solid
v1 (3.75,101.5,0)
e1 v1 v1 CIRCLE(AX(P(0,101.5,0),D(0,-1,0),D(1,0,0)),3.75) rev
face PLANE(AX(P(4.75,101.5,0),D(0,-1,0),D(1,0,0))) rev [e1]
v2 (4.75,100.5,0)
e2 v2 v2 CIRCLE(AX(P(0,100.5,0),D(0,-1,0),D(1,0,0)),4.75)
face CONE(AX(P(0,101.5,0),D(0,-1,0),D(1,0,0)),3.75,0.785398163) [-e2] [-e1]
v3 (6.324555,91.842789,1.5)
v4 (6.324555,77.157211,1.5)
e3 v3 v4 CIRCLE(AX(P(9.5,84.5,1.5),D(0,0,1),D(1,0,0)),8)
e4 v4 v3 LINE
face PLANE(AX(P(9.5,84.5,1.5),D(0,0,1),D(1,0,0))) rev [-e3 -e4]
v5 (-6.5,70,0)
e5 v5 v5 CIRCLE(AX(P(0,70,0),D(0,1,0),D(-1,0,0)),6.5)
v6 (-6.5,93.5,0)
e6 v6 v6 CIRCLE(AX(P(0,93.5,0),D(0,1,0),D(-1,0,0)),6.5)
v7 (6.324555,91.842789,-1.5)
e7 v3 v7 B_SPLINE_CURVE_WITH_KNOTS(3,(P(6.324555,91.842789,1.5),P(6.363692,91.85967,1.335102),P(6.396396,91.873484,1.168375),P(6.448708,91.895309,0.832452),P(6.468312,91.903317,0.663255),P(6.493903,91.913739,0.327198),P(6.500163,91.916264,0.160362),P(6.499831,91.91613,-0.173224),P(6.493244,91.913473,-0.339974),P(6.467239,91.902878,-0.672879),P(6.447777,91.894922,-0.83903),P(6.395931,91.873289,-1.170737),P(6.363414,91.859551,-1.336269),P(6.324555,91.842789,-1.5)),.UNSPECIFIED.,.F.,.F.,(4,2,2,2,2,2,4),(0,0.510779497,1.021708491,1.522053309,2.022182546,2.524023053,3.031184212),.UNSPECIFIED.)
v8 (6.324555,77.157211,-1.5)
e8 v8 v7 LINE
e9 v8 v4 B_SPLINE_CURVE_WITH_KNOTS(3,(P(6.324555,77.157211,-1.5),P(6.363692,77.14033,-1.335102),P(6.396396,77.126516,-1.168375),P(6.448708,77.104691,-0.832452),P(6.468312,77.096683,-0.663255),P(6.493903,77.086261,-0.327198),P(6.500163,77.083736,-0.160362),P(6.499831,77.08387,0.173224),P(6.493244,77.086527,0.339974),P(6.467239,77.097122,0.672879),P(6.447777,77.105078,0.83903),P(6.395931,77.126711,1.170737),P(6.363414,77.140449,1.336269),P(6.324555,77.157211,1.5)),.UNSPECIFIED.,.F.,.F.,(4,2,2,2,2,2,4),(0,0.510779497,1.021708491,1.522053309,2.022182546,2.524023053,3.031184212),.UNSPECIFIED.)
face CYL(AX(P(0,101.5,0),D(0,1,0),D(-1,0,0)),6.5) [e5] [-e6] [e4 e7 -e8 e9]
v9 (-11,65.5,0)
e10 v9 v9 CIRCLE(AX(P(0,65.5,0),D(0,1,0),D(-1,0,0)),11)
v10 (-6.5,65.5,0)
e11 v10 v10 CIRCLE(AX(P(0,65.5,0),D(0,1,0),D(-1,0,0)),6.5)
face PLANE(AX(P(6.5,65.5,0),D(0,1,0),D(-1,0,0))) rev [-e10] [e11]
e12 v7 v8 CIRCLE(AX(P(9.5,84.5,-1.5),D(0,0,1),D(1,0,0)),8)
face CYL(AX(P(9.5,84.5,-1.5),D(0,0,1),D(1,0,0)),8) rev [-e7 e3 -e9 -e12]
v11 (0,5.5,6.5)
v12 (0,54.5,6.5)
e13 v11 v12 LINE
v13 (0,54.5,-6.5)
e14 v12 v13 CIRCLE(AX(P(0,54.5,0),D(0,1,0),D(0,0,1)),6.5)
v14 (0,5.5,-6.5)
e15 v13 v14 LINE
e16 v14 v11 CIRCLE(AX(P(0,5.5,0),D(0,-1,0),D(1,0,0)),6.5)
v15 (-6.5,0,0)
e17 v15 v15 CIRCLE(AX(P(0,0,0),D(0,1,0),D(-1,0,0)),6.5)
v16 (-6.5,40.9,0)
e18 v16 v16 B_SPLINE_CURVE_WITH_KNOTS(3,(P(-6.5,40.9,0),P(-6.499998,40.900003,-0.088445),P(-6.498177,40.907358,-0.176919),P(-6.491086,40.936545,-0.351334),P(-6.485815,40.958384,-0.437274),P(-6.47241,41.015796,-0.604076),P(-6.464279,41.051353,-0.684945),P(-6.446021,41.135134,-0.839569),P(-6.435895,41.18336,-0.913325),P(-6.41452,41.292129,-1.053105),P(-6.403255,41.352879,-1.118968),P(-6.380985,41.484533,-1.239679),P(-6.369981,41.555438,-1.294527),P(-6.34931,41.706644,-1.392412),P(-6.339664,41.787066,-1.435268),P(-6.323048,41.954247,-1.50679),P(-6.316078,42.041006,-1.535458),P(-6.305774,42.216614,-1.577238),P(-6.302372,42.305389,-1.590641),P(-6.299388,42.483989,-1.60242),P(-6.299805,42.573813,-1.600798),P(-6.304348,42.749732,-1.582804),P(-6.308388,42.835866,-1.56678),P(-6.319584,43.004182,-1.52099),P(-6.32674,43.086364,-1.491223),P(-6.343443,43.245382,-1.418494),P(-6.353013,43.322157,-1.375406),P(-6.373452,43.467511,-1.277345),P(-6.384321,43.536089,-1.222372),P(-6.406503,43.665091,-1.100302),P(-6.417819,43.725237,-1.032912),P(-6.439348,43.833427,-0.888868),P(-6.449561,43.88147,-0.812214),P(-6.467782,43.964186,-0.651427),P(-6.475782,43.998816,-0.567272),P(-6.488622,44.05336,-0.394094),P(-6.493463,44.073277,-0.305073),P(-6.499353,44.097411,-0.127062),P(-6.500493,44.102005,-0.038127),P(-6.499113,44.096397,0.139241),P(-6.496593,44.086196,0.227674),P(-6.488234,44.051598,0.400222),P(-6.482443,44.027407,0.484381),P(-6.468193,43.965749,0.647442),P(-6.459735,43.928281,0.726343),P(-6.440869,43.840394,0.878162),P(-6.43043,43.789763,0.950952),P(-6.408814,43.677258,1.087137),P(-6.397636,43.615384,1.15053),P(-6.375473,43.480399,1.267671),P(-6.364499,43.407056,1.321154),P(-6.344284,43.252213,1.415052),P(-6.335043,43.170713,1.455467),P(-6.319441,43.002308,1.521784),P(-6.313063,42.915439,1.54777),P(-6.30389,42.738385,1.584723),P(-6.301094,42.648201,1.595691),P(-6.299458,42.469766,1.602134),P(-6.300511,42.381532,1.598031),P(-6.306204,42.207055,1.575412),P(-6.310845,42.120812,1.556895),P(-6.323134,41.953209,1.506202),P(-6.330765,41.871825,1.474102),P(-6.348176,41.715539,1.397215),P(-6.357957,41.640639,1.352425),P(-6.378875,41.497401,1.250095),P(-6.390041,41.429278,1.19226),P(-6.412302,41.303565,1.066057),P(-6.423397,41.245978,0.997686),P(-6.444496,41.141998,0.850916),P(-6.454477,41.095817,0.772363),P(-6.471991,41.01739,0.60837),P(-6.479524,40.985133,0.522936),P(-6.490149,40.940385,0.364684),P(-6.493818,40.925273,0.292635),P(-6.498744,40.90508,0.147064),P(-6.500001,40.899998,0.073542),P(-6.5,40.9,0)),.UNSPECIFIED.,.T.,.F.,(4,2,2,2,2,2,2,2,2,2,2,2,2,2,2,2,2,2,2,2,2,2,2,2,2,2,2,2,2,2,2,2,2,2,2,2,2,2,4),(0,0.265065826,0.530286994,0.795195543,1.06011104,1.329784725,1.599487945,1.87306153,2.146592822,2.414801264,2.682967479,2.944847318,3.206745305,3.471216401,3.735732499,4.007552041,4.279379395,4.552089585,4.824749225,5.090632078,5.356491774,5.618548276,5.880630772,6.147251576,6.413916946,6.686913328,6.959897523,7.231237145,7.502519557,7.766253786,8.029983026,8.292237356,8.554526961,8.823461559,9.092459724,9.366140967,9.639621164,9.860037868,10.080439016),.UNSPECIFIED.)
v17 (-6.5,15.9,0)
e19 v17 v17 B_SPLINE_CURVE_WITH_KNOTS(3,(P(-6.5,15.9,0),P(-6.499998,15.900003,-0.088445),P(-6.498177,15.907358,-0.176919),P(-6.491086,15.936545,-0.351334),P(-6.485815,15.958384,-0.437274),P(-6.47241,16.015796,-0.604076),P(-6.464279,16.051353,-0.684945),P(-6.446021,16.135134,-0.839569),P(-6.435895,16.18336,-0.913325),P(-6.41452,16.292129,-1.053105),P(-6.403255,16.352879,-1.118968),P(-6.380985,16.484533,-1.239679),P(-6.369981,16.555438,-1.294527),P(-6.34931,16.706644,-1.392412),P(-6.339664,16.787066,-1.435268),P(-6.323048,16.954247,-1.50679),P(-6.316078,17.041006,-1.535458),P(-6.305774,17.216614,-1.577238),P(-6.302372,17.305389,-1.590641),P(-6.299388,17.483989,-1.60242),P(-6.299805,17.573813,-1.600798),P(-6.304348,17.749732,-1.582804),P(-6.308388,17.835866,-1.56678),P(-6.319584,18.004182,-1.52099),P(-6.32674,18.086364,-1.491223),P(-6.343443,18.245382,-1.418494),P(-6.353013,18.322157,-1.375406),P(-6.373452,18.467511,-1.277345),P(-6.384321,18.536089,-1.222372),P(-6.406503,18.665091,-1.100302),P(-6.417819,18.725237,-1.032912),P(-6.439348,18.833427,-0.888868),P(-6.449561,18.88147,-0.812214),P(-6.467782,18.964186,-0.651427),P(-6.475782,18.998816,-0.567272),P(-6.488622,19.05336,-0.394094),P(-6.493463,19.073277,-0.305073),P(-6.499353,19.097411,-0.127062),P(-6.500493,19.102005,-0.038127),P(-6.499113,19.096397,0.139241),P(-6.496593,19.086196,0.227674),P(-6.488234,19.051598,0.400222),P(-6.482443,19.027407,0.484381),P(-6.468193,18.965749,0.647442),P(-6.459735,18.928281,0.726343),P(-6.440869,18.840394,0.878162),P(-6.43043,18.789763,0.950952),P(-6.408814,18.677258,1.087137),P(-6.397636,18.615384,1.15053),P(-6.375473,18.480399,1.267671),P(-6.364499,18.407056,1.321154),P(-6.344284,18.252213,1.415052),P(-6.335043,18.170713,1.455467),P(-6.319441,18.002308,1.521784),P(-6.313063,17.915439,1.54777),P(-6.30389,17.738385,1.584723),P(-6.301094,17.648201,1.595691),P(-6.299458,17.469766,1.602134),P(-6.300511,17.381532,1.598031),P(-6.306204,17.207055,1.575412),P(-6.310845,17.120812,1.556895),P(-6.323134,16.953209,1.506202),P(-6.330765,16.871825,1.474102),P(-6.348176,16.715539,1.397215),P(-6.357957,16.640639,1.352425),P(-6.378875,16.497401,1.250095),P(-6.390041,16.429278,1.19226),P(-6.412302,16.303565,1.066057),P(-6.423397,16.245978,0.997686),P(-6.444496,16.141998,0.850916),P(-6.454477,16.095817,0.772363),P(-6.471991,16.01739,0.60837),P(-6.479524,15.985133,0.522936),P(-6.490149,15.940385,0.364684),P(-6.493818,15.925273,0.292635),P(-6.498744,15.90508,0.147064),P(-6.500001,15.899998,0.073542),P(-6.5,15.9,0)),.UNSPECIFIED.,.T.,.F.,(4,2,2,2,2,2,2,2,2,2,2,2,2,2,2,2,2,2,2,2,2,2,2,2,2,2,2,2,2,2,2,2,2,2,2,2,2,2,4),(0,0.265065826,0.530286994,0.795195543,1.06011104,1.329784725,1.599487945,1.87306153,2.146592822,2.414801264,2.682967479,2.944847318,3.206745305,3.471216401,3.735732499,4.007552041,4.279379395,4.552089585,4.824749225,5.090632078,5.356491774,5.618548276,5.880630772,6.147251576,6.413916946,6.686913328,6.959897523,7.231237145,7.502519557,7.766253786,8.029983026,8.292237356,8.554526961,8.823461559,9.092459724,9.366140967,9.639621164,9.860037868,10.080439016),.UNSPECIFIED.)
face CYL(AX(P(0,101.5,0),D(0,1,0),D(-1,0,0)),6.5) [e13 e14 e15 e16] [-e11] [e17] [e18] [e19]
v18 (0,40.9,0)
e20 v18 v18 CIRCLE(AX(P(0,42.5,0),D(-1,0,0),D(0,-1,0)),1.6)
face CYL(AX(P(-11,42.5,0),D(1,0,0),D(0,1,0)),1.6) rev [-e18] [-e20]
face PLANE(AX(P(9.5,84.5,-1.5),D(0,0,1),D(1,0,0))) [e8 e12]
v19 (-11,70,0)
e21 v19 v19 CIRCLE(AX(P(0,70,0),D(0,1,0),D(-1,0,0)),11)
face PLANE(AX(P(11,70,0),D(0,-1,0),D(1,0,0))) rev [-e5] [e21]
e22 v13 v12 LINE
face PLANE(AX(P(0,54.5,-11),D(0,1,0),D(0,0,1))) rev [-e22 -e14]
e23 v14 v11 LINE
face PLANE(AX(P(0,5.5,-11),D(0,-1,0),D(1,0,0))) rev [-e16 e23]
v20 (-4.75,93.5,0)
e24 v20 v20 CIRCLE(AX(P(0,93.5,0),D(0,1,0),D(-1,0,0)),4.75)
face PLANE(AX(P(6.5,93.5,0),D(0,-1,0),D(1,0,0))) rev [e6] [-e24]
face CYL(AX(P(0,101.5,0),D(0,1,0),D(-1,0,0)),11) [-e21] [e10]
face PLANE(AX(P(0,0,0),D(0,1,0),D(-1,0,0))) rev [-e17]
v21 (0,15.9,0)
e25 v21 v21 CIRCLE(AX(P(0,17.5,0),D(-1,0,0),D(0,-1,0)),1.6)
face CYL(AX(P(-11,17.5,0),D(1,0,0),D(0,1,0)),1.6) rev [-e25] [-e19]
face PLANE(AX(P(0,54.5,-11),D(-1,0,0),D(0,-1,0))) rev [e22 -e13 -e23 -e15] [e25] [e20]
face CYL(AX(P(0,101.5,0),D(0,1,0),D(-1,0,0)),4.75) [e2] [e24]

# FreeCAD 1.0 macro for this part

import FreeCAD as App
import Part
import Sketcher

V = App.Vector


def edges_at(feature, points):
    """Names of the edges that pass closest to the given points."""
    edges = feature.Shape.Edges
    near = lambda p: min(range(len(edges)), key=lambda i: edges[i].distToShape(Part.Vertex(*p))[0])
    return sorted({f"Edge{near(p) + 1}" for p in points})


def add_polygon(sketch, points):
    """Adds a closed chain of lines whose ends are joined by coincident constraints."""
    first, n = sketch.GeometryCount, len(points)
    for a, b in zip(points, points[1:] + points[:1]):
        sketch.addGeometry(Part.LineSegment(App.Vector(*a, 0), App.Vector(*b, 0)), False)
    for i in range(n):
        sketch.addConstraint(Sketcher.Constraint("Coincident", first + i, 2, first + (i + 1) % n, 1))

doc = App.newDocument("Part")
body = doc.addObject("PartDesign::Body", "Body")

sketch1 = body.newObject("Sketcher::SketchObject", "Sketch")
sketch1.AttachmentSupport = (doc.getObject("XY_Plane"), [""])
sketch1.MapMode = "FlatFace"
add_polygon(sketch1, [(0, 0), (6.5, 0), (6.5, 65.5), (11, 65.5), (11, 70), (6.5, 70), (6.5, 93.5), (4.8, 93.5), (4.8, 101.5), (0, 101.5)])
sketch1.addConstraint(Sketcher.Constraint("Horizontal", 0))
sketch1.addConstraint(Sketcher.Constraint("Vertical", 1))
sketch1.addConstraint(Sketcher.Constraint("Horizontal", 2))
sketch1.addConstraint(Sketcher.Constraint("Vertical", 3))
sketch1.addConstraint(Sketcher.Constraint("Horizontal", 4))
sketch1.addConstraint(Sketcher.Constraint("Vertical", 5))
sketch1.addConstraint(Sketcher.Constraint("Horizontal", 6))
sketch1.addConstraint(Sketcher.Constraint("Vertical", 7))
sketch1.addConstraint(Sketcher.Constraint("Horizontal", 8))
sketch1.addConstraint(Sketcher.Constraint("Vertical", 9))
sketch1.addConstraint(Sketcher.Constraint("Coincident", 9, 2, -1, 1))
sketch1.addConstraint(Sketcher.Constraint("Vertical", 1, 2, 4, 2))
sketch1.addConstraint(Sketcher.Constraint("Equal", 4, 3))
sketch1.addConstraint(Sketcher.Constraint("DistanceY", 7, 1, 7, 2, 8.0))
sketch1.addConstraint(Sketcher.Constraint("DistanceX", 0, 1, 0, 2, 6.5))
sketch1.addConstraint(Sketcher.Constraint("DistanceX", 2, 1, 2, 2, 4.5))
sketch1.addConstraint(Sketcher.Constraint("DistanceY", 1, 1, 1, 2, 65.5))
sketch1.addConstraint(Sketcher.Constraint("DistanceY", 5, 1, 5, 2, 23.5))
sketch1.addConstraint(Sketcher.Constraint("DistanceX", 6, 2, 6, 1, 1.75))
revolution = body.newObject("PartDesign::Revolution", "Revolution")
revolution.Profile = sketch1
revolution.ReferenceAxis = (sketch1, ["V_Axis"])
revolution.Angle = 360
doc.recompute()

chamfer = body.newObject("PartDesign::Chamfer", "Chamfer")
chamfer.Base = (revolution, edges_at(revolution, [(4.75, 101.5, 0)]))
chamfer.Size = 1

sketch2 = body.newObject("Sketcher::SketchObject", "Sketch001")
sketch2.AttachmentSupport = (doc.getObject("XY_Plane"), [""])
sketch2.MapMode = "FlatFace"
add_polygon(sketch2, [(0, 54), (0, 6), (14, 6), (14, 54)])
sketch2.addConstraint(Sketcher.Constraint("Vertical", 0))
sketch2.addConstraint(Sketcher.Constraint("Horizontal", 1))
sketch2.addConstraint(Sketcher.Constraint("Vertical", 2))
sketch2.addConstraint(Sketcher.Constraint("Horizontal", 3))
sketch2.addConstraint(Sketcher.Constraint("PointOnObject", 0, 2, -2))
sketch2.addConstraint(Sketcher.Constraint("DistanceY", 0, 2, 0, 1, 49.0))
sketch2.addConstraint(Sketcher.Constraint("DistanceY", -1, 1, 0, 2, 5.5))
sketch2.addConstraint(Sketcher.Constraint("DistanceX", 1, 1, 1, 2, 13.680212))
pocket1 = body.newObject("PartDesign::Pocket", "Pocket")
pocket1.Profile = sketch2
pocket1.Type = "ThroughAll"
pocket1.Midplane = True

sketch3 = body.newObject("Sketcher::SketchObject", "Sketch002")
sketch3.AttachmentSupport = (doc.getObject("XY_Plane"), [""])
sketch3.MapMode = "FlatFace"
sketch3.addGeometry(Part.Circle(V(10, 84, 0), V(0, 0, 1), 8), False)
sketch3.addConstraint(Sketcher.Constraint("Diameter", 0, 16.0))
sketch3.addConstraint(Sketcher.Constraint("DistanceX", -1, 1, 0, 3, 9.5))
sketch3.addConstraint(Sketcher.Constraint("DistanceY", -1, 1, 0, 3, 84.5))
pocket2 = body.newObject("PartDesign::Pocket", "Pocket001")
pocket2.Profile = sketch3
pocket2.Length = 3
pocket2.Midplane = True

sketch4 = body.newObject("Sketcher::SketchObject", "Sketch003")
sketch4.AttachmentSupport = (doc.getObject("YZ_Plane"), [""])
sketch4.MapMode = "FlatFace"
sketch4.addGeometry(Part.Circle(V(42.5, 0, 0), V(0, 0, 1), 1.6), False)
sketch4.addGeometry(Part.Circle(V(17.5, 0, 0), V(0, 0, 1), 1.6), False)
sketch4.addConstraint(Sketcher.Constraint("Equal", 0, 1))
sketch4.addConstraint(Sketcher.Constraint("PointOnObject", 0, 3, -1))
sketch4.addConstraint(Sketcher.Constraint("PointOnObject", 1, 3, -1))
sketch4.addConstraint(Sketcher.Constraint("Diameter", 0, 3.2))
sketch4.addConstraint(Sketcher.Constraint("DistanceX", 1, 3, 0, 3, 25.0))
sketch4.addConstraint(Sketcher.Constraint("DistanceX", -1, 1, 0, 3, 42.5))
pocket3 = body.newObject("PartDesign::Pocket", "Pocket002")
pocket3.Profile = sketch4
pocket3.Type = "ThroughAll"
pocket3.Midplane = True

doc.recompute()
